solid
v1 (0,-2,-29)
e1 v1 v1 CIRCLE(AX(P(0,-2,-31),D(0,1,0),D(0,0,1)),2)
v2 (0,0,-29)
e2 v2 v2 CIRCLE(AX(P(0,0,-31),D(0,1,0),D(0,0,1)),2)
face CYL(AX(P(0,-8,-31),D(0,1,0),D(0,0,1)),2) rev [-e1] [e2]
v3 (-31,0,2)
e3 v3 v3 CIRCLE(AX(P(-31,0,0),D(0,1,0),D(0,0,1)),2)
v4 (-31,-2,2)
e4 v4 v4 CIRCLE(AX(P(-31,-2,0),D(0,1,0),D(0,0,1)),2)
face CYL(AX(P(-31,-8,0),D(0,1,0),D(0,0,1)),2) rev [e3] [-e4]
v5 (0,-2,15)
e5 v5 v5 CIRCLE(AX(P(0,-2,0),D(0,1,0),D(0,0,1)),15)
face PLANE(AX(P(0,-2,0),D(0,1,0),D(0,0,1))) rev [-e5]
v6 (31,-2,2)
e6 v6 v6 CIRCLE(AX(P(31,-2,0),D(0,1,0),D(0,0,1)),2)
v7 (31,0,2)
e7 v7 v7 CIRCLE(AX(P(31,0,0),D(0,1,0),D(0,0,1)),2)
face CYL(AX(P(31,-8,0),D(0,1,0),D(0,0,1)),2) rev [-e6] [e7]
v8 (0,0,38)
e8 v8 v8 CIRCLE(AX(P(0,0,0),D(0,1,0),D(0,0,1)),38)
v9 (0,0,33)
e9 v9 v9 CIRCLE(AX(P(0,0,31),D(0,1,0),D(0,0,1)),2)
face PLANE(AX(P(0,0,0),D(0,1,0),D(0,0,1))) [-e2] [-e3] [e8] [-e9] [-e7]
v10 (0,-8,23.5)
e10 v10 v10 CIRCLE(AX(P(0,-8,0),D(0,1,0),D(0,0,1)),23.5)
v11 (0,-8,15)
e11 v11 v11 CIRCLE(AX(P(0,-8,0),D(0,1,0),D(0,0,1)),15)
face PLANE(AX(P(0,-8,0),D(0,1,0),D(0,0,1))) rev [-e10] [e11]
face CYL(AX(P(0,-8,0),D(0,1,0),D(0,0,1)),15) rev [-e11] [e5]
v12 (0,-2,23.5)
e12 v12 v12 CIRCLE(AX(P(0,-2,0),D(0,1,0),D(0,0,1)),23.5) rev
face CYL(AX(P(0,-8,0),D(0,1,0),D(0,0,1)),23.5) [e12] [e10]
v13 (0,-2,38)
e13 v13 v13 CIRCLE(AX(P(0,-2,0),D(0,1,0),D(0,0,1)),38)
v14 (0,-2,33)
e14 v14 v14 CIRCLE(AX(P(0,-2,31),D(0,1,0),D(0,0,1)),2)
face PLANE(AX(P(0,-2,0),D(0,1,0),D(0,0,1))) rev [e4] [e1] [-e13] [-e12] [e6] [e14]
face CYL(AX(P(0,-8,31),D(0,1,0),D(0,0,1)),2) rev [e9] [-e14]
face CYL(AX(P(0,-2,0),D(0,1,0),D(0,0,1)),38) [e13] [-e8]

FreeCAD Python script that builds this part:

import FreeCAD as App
import Part
import Sketcher

doc = App.newDocument("Part")
params = doc.addObject("Spreadsheet::Sheet", "Params")
for row, (alias, value) in enumerate([
    ("sketch1_diameter", "47 mm"),
    ("pad1_length", "8 mm"),
    ("sketch2_diameter", "76 mm"),
    ("pad2_length", "2 mm"),
    ("sketch3_diameter", "30 mm"),
    ("sketch4_diameter", "4 mm"),
], start=1):
    params.set(f"A{row}", alias)
    params.set(f"B{row}", "=" + value)
    params.setAlias(f"B{row}", alias)

body = doc.addObject("PartDesign::Body", "Body")

# Sketch on XZ plane
sketch1 = body.newObject("Sketcher::SketchObject", "Sketch")
sketch1.AttachmentSupport = (doc.getObject("XZ_Plane"), [""])
sketch1.MapMode = "FlatFace"
sketch1.addGeometry(Part.Circle(App.Vector(0, 0, 0), App.Vector(0, 0, 1), 24), False)
sketch1.addConstraint([
    Sketcher.Constraint("Coincident", 0, 3, -1, 1),
    Sketcher.Constraint("Diameter", 0, 47.0),
])
sketch1.setExpression("Constraints[1]", "Params.sketch1_diameter")
pad1 = body.newObject("PartDesign::Pad", "Pad")
pad1.Profile = sketch1
pad1.setExpression("Length", "Params.pad1_length")

# Sketch on XZ plane
sketch2 = body.newObject("Sketcher::SketchObject", "Sketch001")
sketch2.AttachmentSupport = (doc.getObject("XZ_Plane"), [""])
sketch2.MapMode = "FlatFace"
sketch2.addGeometry(Part.Circle(App.Vector(0, 0, 0), App.Vector(0, 0, 1), 38), False)
sketch2.addConstraint([
    Sketcher.Constraint("Coincident", 0, 3, -1, 1),
    Sketcher.Constraint("Diameter", 0, 76.0),
])
sketch2.setExpression("Constraints[1]", "Params.sketch2_diameter")
pad2 = body.newObject("PartDesign::Pad", "Pad001")
pad2.Profile = sketch2
pad2.setExpression("Length", "Params.pad2_length")

# Sketch on XZ plane
sketch3 = body.newObject("Sketcher::SketchObject", "Sketch002")
sketch3.AttachmentSupport = (doc.getObject("XZ_Plane"), [""])
sketch3.MapMode = "FlatFace"
sketch3.AttachmentOffset = App.Placement(App.Vector(0, 0, 2), App.Rotation())
sketch3.addGeometry(Part.Circle(App.Vector(0, 0, 0), App.Vector(0, 0, 1), 15), False)
sketch3.addConstraint([
    Sketcher.Constraint("Coincident", 0, 3, -1, 1),
    Sketcher.Constraint("Diameter", 0, 30.0),
])
sketch3.setExpression("Constraints[1]", "Params.sketch3_diameter")
pocket1 = body.newObject("PartDesign::Pocket", "Pocket")
pocket1.Profile = sketch3
pocket1.Type = "ThroughAll"
pocket1.Reversed = True

# Sketch on XZ plane
sketch4 = body.newObject("Sketcher::SketchObject", "Sketch003")
sketch4.AttachmentSupport = (doc.getObject("XZ_Plane"), [""])
sketch4.MapMode = "FlatFace"
sketch4.addGeometry([
    Part.Circle(App.Vector(0, -31, 0), App.Vector(0, 0, 1), 2),
    Part.Circle(App.Vector(31, 0, 0), App.Vector(0, 0, 1), 2),
    Part.Circle(App.Vector(0, 31, 0), App.Vector(0, 0, 1), 2),
    Part.Circle(App.Vector(-31, 0, 0), App.Vector(0, 0, 1), 2),
], False)
sketch4.addConstraint([
    Sketcher.Constraint("Equal", 0, 1),
    Sketcher.Constraint("Equal", 1, 2),
    Sketcher.Constraint("Equal", 2, 3),
    Sketcher.Constraint("Symmetric", 0, 3, 2, 3, -1, 1),
    Sketcher.Constraint("Symmetric", 1, 3, 3, 3, -1, 1),
    Sketcher.Constraint("PointOnObject", 0, 3, -2),
    Sketcher.Constraint("PointOnObject", 1, 3, -1),
    Sketcher.Constraint("Diameter", 0, 4.0),
    Sketcher.Constraint("DistanceY", 0, 3, -1, 1, 31.0),
    Sketcher.Constraint("DistanceX", -1, 1, 1, 3, 31.0),
])
sketch4.setExpression("Constraints[7]", "Params.sketch4_diameter")
pocket2 = body.newObject("PartDesign::Pocket", "Pocket001")
pocket2.Profile = sketch4
pocket2.Type = "ThroughAll"
pocket2.Reversed = True

doc.recompute()
